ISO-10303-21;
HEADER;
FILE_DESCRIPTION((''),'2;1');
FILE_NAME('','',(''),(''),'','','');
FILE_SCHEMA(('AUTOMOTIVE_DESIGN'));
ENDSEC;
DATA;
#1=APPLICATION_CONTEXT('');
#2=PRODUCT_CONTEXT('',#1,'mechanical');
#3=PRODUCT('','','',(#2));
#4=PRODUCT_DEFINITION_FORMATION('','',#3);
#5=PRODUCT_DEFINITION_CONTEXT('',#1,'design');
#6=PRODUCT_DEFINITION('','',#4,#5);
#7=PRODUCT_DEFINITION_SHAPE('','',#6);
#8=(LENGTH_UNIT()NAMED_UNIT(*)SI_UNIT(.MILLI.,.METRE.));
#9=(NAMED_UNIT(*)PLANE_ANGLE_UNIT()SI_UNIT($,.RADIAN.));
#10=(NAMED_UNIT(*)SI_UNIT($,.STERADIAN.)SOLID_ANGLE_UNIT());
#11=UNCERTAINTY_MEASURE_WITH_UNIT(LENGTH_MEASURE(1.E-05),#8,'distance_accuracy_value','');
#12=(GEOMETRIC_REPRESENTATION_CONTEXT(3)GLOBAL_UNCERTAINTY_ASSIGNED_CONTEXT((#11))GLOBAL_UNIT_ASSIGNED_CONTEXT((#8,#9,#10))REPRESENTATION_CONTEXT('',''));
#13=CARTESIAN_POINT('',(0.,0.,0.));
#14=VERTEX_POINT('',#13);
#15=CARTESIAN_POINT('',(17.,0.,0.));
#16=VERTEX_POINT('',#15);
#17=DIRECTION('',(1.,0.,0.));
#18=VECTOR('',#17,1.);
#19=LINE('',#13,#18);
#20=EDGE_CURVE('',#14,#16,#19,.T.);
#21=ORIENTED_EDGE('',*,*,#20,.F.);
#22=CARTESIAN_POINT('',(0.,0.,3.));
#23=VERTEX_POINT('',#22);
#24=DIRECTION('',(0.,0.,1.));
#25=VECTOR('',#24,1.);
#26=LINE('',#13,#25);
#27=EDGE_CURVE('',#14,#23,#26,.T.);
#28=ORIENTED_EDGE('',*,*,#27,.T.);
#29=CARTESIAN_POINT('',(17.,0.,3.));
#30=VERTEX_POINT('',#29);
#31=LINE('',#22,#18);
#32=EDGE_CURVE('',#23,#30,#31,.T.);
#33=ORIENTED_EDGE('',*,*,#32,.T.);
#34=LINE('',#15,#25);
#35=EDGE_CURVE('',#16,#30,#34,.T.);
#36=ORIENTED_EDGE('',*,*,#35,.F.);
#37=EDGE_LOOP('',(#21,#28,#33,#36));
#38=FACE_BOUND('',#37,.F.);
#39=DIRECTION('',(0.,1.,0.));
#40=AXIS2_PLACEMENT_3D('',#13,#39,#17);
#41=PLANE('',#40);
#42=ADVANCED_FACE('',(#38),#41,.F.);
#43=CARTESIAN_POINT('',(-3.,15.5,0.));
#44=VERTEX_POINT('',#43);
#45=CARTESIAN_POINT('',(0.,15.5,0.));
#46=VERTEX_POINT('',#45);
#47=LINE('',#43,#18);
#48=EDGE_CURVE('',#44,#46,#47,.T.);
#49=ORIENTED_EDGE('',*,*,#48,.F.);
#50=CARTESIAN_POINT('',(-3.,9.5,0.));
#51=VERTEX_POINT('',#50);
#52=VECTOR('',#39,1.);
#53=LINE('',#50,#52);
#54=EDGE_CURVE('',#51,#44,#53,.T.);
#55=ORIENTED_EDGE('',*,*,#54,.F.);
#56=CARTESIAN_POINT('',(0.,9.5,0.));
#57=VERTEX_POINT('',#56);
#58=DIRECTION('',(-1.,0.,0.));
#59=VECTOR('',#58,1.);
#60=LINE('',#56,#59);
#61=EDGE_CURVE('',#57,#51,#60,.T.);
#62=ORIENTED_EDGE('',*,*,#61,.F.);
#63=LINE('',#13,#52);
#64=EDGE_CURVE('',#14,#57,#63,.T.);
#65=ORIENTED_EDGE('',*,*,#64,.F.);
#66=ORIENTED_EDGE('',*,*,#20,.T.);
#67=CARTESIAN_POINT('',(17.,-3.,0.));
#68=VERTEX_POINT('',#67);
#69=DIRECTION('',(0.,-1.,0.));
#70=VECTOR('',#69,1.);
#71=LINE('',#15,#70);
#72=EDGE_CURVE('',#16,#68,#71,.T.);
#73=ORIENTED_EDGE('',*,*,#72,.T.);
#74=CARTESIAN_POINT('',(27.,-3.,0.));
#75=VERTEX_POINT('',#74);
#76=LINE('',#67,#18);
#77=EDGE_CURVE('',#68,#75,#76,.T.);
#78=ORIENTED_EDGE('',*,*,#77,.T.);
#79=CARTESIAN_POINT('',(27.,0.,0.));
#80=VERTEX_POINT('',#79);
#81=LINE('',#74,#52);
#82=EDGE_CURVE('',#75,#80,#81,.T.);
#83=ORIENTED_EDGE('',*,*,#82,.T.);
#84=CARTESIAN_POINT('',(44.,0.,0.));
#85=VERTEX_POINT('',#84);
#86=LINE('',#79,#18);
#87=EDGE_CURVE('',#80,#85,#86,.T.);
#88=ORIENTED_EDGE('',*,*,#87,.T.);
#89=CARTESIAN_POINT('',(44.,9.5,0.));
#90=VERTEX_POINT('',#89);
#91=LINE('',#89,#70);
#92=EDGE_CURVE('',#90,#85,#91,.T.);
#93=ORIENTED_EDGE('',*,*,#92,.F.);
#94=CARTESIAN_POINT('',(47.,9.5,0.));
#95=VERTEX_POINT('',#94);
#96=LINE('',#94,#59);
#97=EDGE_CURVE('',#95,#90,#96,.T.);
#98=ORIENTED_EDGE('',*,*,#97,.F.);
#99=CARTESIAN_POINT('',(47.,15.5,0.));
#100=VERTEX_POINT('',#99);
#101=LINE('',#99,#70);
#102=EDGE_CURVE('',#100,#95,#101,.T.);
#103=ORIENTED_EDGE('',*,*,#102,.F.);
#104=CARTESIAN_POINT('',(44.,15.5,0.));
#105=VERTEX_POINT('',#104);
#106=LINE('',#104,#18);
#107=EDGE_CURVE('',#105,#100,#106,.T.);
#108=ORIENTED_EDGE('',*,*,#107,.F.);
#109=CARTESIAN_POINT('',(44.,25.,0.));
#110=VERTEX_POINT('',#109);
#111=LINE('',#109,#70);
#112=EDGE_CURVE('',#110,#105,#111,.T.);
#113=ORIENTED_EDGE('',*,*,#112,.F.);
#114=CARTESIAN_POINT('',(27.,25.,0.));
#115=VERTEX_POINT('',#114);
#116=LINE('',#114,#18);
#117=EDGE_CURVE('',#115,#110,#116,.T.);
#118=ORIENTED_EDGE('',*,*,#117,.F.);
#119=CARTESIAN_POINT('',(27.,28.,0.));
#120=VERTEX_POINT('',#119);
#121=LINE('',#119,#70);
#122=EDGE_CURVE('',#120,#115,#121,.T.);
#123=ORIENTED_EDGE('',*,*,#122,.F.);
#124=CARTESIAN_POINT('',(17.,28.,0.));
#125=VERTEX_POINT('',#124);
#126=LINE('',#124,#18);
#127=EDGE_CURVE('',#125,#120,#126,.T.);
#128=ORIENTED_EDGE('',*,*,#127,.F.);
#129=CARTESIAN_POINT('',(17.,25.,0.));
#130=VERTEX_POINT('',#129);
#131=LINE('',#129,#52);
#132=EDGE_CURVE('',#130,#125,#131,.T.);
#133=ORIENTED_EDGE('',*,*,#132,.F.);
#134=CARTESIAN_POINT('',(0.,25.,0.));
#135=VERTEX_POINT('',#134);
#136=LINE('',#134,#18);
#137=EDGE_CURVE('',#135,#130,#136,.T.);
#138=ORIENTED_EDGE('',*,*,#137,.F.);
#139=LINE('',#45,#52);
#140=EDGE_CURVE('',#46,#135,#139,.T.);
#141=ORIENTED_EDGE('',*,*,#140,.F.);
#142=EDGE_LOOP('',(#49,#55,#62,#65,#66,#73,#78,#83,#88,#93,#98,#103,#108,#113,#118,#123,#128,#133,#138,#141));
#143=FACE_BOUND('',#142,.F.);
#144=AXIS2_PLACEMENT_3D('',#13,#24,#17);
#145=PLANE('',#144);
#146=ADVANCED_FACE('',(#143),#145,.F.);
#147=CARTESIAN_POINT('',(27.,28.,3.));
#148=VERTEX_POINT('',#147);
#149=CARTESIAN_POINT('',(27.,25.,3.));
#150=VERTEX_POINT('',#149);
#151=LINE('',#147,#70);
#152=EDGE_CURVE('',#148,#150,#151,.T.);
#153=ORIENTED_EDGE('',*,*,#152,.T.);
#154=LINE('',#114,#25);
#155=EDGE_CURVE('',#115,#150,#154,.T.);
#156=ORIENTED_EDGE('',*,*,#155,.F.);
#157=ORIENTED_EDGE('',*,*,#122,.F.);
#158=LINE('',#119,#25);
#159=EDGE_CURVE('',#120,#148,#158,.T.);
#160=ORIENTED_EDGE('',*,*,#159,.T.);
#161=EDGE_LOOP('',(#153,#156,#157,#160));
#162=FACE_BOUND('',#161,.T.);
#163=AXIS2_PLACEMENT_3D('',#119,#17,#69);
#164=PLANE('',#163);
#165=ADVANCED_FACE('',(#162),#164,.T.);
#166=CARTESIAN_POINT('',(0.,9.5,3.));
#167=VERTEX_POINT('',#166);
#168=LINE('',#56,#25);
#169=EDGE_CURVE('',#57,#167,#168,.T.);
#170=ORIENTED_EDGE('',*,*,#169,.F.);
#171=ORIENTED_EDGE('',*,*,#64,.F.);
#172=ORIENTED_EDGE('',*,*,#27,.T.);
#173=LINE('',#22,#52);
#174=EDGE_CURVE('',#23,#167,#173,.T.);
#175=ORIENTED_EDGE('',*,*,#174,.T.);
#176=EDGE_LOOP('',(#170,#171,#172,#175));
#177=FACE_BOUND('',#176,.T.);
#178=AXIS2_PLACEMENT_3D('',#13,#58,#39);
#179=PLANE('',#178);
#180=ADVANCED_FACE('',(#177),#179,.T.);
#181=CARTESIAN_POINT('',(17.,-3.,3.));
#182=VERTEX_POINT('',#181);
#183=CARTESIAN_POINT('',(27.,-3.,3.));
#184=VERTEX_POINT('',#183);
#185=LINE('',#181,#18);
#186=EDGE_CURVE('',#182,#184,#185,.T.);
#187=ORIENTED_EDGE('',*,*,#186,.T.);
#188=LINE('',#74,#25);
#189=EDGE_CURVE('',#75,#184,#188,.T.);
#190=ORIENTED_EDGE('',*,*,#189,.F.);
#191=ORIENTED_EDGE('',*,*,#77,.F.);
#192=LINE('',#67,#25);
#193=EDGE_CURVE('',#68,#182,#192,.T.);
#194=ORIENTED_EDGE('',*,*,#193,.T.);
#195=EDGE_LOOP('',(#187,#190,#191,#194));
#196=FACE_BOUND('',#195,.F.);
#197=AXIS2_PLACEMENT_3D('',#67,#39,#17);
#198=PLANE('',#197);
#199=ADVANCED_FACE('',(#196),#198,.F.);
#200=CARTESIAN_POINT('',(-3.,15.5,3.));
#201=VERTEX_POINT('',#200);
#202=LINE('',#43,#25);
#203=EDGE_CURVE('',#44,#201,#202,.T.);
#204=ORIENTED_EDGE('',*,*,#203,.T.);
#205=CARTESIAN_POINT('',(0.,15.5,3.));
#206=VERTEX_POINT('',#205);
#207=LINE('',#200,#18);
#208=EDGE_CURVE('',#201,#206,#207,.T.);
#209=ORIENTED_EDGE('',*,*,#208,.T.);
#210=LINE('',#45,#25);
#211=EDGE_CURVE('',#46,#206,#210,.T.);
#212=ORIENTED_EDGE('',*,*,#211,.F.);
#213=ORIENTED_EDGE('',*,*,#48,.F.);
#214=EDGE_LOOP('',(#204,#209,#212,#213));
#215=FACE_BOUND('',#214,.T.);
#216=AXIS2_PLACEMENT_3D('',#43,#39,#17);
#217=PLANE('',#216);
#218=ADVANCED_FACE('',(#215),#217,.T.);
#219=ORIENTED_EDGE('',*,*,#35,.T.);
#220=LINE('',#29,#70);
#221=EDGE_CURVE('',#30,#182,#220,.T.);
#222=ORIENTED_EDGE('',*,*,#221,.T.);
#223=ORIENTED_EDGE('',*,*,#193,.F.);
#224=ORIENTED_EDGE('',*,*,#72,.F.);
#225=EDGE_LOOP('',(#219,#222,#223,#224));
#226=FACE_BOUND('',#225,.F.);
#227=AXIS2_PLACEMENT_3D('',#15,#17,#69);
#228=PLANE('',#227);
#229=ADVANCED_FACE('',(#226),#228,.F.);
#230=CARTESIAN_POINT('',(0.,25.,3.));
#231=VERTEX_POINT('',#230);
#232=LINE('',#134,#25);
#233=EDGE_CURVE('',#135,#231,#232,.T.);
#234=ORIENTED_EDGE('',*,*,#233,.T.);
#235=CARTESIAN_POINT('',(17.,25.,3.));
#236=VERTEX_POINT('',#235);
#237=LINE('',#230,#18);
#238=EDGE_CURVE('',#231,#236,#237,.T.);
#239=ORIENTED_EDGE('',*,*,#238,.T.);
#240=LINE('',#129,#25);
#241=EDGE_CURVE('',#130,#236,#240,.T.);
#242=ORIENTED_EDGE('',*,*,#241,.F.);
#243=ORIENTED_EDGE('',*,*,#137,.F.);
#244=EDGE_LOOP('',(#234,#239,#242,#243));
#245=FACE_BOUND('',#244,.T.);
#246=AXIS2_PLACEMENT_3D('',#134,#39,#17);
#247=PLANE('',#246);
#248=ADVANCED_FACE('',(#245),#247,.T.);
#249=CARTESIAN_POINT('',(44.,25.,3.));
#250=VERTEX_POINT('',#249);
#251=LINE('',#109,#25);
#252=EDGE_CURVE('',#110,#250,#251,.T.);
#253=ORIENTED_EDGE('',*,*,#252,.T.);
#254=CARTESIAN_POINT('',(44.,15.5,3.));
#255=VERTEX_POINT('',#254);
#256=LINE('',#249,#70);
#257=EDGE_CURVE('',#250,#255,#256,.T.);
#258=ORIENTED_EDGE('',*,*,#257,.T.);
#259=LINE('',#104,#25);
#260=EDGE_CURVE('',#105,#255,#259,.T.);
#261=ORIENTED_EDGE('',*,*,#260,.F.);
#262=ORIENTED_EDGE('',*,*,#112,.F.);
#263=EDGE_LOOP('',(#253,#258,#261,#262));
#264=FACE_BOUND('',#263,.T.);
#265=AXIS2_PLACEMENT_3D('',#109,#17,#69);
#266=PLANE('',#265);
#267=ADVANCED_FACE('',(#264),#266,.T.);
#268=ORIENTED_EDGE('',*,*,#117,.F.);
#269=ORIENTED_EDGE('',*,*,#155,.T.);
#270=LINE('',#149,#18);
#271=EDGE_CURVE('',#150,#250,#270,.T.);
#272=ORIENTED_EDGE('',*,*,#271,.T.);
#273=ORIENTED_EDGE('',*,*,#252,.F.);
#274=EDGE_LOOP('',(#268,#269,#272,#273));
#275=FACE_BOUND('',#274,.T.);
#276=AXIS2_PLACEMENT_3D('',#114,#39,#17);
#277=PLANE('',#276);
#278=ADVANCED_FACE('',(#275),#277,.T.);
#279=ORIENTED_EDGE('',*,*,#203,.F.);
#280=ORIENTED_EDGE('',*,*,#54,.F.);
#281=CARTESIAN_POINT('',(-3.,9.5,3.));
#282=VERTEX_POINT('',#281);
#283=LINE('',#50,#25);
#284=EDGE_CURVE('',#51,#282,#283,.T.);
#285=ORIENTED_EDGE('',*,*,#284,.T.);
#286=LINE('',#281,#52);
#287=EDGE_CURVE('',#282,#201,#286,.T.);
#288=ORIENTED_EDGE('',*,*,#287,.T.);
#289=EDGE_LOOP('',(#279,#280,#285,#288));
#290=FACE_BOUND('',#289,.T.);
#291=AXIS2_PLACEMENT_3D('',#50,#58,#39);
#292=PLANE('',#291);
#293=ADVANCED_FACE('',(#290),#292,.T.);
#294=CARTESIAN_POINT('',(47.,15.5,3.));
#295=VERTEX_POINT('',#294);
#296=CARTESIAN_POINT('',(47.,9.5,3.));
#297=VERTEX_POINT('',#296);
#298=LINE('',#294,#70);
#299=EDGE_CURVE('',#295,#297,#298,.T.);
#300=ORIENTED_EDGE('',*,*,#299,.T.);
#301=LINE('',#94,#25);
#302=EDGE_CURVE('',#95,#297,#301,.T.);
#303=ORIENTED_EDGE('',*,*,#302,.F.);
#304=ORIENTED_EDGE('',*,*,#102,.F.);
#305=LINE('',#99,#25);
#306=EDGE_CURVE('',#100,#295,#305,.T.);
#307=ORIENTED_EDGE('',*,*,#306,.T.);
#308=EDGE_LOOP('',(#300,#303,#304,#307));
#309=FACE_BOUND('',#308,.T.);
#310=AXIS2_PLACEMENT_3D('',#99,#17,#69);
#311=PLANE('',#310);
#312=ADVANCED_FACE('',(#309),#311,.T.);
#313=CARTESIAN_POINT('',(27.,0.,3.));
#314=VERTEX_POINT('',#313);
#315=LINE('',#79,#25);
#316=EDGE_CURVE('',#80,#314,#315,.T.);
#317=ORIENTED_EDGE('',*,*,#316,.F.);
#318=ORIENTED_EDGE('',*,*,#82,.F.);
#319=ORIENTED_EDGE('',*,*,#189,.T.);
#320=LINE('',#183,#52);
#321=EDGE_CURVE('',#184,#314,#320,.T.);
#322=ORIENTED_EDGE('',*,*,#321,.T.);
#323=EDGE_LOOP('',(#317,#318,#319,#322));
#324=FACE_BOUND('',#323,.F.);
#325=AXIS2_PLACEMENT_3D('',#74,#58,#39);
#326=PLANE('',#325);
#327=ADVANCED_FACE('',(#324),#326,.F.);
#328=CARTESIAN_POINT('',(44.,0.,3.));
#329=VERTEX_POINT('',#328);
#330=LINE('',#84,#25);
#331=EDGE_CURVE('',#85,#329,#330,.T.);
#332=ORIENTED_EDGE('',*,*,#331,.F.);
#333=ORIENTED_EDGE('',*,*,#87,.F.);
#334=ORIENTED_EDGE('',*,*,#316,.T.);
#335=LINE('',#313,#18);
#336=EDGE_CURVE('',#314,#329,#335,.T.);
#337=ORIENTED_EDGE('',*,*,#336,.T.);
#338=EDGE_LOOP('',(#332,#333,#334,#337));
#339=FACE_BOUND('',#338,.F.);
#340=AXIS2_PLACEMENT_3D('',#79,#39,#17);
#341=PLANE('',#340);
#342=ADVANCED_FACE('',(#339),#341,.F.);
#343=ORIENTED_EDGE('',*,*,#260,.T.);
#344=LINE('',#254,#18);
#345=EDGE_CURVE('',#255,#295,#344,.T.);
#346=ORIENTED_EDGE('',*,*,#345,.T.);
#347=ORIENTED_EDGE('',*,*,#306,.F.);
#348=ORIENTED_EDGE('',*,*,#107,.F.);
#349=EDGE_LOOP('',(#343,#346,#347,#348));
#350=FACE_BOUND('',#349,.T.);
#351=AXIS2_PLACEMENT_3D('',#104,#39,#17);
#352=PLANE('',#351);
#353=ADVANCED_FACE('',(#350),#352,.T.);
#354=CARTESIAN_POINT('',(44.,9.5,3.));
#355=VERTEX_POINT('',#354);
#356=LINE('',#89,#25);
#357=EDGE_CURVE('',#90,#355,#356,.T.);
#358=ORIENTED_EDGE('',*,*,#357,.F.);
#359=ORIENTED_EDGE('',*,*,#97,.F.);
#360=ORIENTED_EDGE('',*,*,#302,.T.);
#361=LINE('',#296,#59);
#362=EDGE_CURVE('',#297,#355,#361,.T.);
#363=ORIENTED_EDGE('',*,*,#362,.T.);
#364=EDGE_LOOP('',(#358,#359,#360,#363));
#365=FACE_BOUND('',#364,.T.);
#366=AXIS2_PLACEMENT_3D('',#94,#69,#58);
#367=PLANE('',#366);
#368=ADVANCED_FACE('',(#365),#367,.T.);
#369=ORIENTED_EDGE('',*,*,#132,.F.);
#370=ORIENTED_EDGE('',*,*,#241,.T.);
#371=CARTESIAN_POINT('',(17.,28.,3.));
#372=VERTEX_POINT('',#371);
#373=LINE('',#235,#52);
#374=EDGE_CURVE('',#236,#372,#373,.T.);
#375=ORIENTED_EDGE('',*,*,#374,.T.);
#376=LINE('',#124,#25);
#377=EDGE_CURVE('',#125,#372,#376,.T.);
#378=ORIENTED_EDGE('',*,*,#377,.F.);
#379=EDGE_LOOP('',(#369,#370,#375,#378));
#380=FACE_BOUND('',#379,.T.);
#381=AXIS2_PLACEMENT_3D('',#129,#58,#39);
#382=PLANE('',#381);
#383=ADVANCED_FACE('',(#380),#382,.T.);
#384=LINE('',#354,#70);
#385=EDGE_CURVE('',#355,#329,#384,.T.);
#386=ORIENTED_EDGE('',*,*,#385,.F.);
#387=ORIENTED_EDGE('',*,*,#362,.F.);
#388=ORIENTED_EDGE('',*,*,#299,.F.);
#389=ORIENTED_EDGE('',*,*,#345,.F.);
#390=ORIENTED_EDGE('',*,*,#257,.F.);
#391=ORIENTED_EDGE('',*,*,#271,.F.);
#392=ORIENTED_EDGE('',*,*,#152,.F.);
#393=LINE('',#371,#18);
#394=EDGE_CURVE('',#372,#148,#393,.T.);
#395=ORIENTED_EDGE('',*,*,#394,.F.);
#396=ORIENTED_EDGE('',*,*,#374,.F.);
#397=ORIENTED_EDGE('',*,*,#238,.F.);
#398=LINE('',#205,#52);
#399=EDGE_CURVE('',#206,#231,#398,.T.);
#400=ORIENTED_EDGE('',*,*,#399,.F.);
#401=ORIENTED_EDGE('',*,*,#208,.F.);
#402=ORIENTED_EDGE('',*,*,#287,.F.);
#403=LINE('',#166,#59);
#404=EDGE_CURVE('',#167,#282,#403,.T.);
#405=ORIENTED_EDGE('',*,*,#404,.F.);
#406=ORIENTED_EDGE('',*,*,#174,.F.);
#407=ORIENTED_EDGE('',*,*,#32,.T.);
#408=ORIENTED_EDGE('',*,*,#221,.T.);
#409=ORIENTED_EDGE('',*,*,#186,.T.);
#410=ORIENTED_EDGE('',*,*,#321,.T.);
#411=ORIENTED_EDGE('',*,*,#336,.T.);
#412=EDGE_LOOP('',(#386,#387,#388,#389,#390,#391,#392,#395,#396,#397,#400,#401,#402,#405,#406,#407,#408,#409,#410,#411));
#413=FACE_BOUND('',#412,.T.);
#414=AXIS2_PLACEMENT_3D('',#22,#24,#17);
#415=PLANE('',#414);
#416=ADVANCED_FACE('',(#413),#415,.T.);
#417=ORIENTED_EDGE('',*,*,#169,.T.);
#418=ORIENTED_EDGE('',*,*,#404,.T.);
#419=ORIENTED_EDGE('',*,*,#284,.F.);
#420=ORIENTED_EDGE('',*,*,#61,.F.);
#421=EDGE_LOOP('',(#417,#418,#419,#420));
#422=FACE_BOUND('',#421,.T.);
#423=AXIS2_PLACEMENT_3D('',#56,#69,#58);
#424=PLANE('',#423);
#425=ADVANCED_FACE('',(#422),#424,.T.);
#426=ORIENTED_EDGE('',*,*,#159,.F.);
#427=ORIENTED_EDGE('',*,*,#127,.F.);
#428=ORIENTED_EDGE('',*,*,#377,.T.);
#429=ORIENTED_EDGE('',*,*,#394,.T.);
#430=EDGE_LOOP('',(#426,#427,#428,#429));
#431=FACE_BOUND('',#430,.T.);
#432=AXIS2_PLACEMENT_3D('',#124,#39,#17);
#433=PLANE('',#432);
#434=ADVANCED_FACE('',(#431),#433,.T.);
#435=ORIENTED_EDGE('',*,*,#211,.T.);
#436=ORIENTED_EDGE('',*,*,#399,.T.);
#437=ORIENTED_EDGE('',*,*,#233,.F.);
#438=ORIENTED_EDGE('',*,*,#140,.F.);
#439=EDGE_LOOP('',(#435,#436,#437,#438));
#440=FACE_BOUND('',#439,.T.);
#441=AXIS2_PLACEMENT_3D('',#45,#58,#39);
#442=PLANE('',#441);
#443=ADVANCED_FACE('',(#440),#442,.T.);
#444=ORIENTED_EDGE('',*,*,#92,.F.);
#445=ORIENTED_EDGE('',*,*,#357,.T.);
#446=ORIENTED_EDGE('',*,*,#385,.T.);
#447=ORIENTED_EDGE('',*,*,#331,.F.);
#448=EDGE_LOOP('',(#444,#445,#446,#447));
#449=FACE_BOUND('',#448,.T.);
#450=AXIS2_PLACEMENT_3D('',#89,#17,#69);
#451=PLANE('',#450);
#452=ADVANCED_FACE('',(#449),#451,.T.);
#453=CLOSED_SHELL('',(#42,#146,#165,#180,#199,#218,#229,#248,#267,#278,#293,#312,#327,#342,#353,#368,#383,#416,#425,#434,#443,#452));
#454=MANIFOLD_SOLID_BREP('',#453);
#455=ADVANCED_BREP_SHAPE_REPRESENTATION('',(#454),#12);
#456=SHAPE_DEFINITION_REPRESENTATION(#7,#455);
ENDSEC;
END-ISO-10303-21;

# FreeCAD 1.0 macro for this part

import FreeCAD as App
import Part
import Sketcher

V = App.Vector

doc = App.newDocument("Part")
body = doc.addObject("PartDesign::Body", "Body")

# Sketch on XY plane
sketch1 = doc.addObject("Sketcher::SketchObject", "Sketch")
body.addObject(sketch1)
sketch1.AttachmentSupport = (doc.XY_Plane, [""])
sketch1.MapMode = "FlatFace"
sketch1.addGeometry(Part.LineSegment(V(-3, 9.5, 0), V(0, 9.5, 0)), False)
sketch1.addGeometry(Part.LineSegment(V(0, 9.5, 0), V(0, 0, 0)), False)
sketch1.addGeometry(Part.LineSegment(V(0, 0, 0), V(17, 0, 0)), False)
sketch1.addGeometry(Part.LineSegment(V(17, 0, 0), V(17, -3, 0)), False)
sketch1.addGeometry(Part.LineSegment(V(17, -3, 0), V(27, -3, 0)), False)
sketch1.addGeometry(Part.LineSegment(V(27, -3, 0), V(27, 0, 0)), False)
sketch1.addGeometry(Part.LineSegment(V(27, 0, 0), V(44, 0, 0)), False)
sketch1.addGeometry(Part.LineSegment(V(44, 0, 0), V(44, 9.5, 0)), False)
sketch1.addGeometry(Part.LineSegment(V(44, 9.5, 0), V(47, 9.5, 0)), False)
sketch1.addGeometry(Part.LineSegment(V(47, 9.5, 0), V(47, 15.5, 0)), False)
sketch1.addGeometry(Part.LineSegment(V(47, 15.5, 0), V(44, 15.5, 0)), False)
sketch1.addGeometry(Part.LineSegment(V(44, 15.5, 0), V(44, 25, 0)), False)
sketch1.addGeometry(Part.LineSegment(V(44, 25, 0), V(27, 25, 0)), False)
sketch1.addGeometry(Part.LineSegment(V(27, 25, 0), V(27, 28, 0)), False)
sketch1.addGeometry(Part.LineSegment(V(27, 28, 0), V(17, 28, 0)), False)
sketch1.addGeometry(Part.LineSegment(V(17, 28, 0), V(17, 25, 0)), False)
sketch1.addGeometry(Part.LineSegment(V(17, 25, 0), V(0, 25, 0)), False)
sketch1.addGeometry(Part.LineSegment(V(0, 25, 0), V(0, 15.5, 0)), False)
sketch1.addGeometry(Part.LineSegment(V(0, 15.5, 0), V(-3, 15.5, 0)), False)
sketch1.addGeometry(Part.LineSegment(V(-3, 15.5, 0), V(-3, 9.5, 0)), False)
sketch1.addConstraint(Sketcher.Constraint("Coincident", 0, 2, 1, 1))
sketch1.addConstraint(Sketcher.Constraint("Coincident", 1, 2, 2, 1))
sketch1.addConstraint(Sketcher.Constraint("Coincident", 2, 2, 3, 1))
sketch1.addConstraint(Sketcher.Constraint("Coincident", 3, 2, 4, 1))
sketch1.addConstraint(Sketcher.Constraint("Coincident", 4, 2, 5, 1))
sketch1.addConstraint(Sketcher.Constraint("Coincident", 5, 2, 6, 1))
sketch1.addConstraint(Sketcher.Constraint("Coincident", 6, 2, 7, 1))
sketch1.addConstraint(Sketcher.Constraint("Coincident", 7, 2, 8, 1))
sketch1.addConstraint(Sketcher.Constraint("Coincident", 8, 2, 9, 1))
sketch1.addConstraint(Sketcher.Constraint("Coincident", 9, 2, 10, 1))
sketch1.addConstraint(Sketcher.Constraint("Coincident", 10, 2, 11, 1))
sketch1.addConstraint(Sketcher.Constraint("Coincident", 11, 2, 12, 1))
sketch1.addConstraint(Sketcher.Constraint("Coincident", 12, 2, 13, 1))
sketch1.addConstraint(Sketcher.Constraint("Coincident", 13, 2, 14, 1))
sketch1.addConstraint(Sketcher.Constraint("Coincident", 14, 2, 15, 1))
sketch1.addConstraint(Sketcher.Constraint("Coincident", 15, 2, 16, 1))
sketch1.addConstraint(Sketcher.Constraint("Coincident", 16, 2, 17, 1))
sketch1.addConstraint(Sketcher.Constraint("Coincident", 17, 2, 18, 1))
sketch1.addConstraint(Sketcher.Constraint("Coincident", 18, 2, 19, 1))
sketch1.addConstraint(Sketcher.Constraint("Coincident", 19, 2, 0, 1))
sketch1.addConstraint(Sketcher.Constraint("Horizontal", 0))
sketch1.addConstraint(Sketcher.Constraint("Vertical", 1))
sketch1.addConstraint(Sketcher.Constraint("Horizontal", 2))
sketch1.addConstraint(Sketcher.Constraint("Vertical", 3))
sketch1.addConstraint(Sketcher.Constraint("Horizontal", 4))
sketch1.addConstraint(Sketcher.Constraint("Vertical", 5))
sketch1.addConstraint(Sketcher.Constraint("Horizontal", 6))
sketch1.addConstraint(Sketcher.Constraint("Vertical", 7))
sketch1.addConstraint(Sketcher.Constraint("Horizontal", 8))
sketch1.addConstraint(Sketcher.Constraint("Vertical", 9))
sketch1.addConstraint(Sketcher.Constraint("Horizontal", 10))
sketch1.addConstraint(Sketcher.Constraint("Vertical", 11))
sketch1.addConstraint(Sketcher.Constraint("Horizontal", 12))
sketch1.addConstraint(Sketcher.Constraint("Vertical", 13))
sketch1.addConstraint(Sketcher.Constraint("Horizontal", 14))
sketch1.addConstraint(Sketcher.Constraint("Vertical", 15))
sketch1.addConstraint(Sketcher.Constraint("Horizontal", 16))
sketch1.addConstraint(Sketcher.Constraint("Vertical", 17))
sketch1.addConstraint(Sketcher.Constraint("Horizontal", 18))
sketch1.addConstraint(Sketcher.Constraint("Vertical", 19))
sketch1.addConstraint(Sketcher.Constraint("Coincident", 1, 2, -1, 1))
sketch1.addConstraint(Sketcher.Constraint("PointOnObject", 5, 2, -1))
sketch1.addConstraint(Sketcher.Constraint("PointOnObject", 16, 2, -2))
sketch1.addConstraint(Sketcher.Constraint("Horizontal", 0, 2, 7, 2))
sketch1.addConstraint(Sketcher.Constraint("Horizontal", 12, 2, 15, 2))
sketch1.addConstraint(Sketcher.Constraint("Horizontal", 10, 2, 17, 2))
sketch1.addConstraint(Sketcher.Constraint("Vertical", 7, 2, 10, 2))
sketch1.addConstraint(Sketcher.Constraint("Vertical", 5, 2, 12, 2))
sketch1.addConstraint(Sketcher.Constraint("Vertical", 3, 2, 14, 2))
sketch1.addConstraint(Sketcher.Constraint("Equal", 2, 6))
sketch1.addConstraint(Sketcher.Constraint("Equal", 0, 8))
sketch1.addConstraint(Sketcher.Constraint("Equal", 18, 3))
sketch1.addConstraint(Sketcher.Constraint("Equal", 7, 11))
sketch1.addConstraint(Sketcher.Constraint("Equal", 5, 13))
sketch1.addConstraint(Sketcher.Constraint("DistanceX", 0, 1, 0, 2, 3.0))
sketch1.addConstraint(Sketcher.Constraint("DistanceX", 4, 1, 4, 2, 10.0))
sketch1.addConstraint(Sketcher.Constraint("DistanceY", 9, 1, 9, 2, 6.0))
sketch1.addConstraint(Sketcher.Constraint("DistanceY", -1, 1, 11, 2, 25.0))
sketch1.addConstraint(Sketcher.Constraint("DistanceX", 2, 1, 2, 2, 17.0))
pad1 = doc.addObject("PartDesign::Pad", "Pad")
body.addObject(pad1)
pad1.Profile = sketch1
pad1.Length = 3

doc.recompute()
